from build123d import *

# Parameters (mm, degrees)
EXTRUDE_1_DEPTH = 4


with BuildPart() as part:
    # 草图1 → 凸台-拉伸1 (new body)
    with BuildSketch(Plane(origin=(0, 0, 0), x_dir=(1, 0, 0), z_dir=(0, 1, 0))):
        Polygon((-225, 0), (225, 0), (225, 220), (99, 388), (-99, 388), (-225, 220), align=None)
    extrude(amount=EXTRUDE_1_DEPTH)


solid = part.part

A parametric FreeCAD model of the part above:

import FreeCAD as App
import Part
import Sketcher
from FreeCAD import Vector
Q = App.Units.Quantity


def add_polygon(sketch, points):
    """Adds a closed chain of lines whose ends are joined by coincident constraints."""
    first, n = sketch.GeometryCount, len(points)
    for a, b in zip(points, points[1:] + points[:1]):
        sketch.addGeometry(Part.LineSegment(App.Vector(*a, 0), App.Vector(*b, 0)), False)
    for i in range(n):
        sketch.addConstraint(Sketcher.Constraint("Coincident", first + i, 2, first + (i + 1) % n, 1))

doc = App.newDocument("Part")
body = doc.addObject("PartDesign::Body", "Body")

# Sketch on XZ plane
sketch1 = doc.addObject("Sketcher::SketchObject", "Sketch")
body.addObject(sketch1)
sketch1.AttachmentSupport = (doc.XZ_Plane, [""])
sketch1.MapMode = "FlatFace"
add_polygon(sketch1, [(-225, 0), (225, 0), (225, -220), (99, -388), (-99, -388), (-225, -220)])  # lines 0-5
sketch1.addConstraint([
    Sketcher.Constraint("Horizontal", 0),
    Sketcher.Constraint("Vertical", 1),
    Sketcher.Constraint("Horizontal", 3),
    Sketcher.Constraint("Vertical", 5),
    Sketcher.Constraint("Symmetric", 0, 2, 5, 2, -1, 1),
    Sketcher.Constraint("Horizontal", 1, 2, 4, 2),
    Sketcher.Constraint("Equal", 2, 4),
    Sketcher.Constraint("DistanceX", 0, 1, 0, 2, Q("450 mm")),
    Sketcher.Constraint("DistanceX", 3, 2, 3, 1, Q("198 mm")),
    Sketcher.Constraint("DistanceY", 1, 2, 1, 1, Q("220 mm")),
    Sketcher.Constraint("Distance", 2, Q("210 mm")),
])
pad1 = doc.addObject("PartDesign::Pad", "Pad")
body.addObject(pad1)
pad1.Profile = sketch1
pad1.Length = 4
pad1.Reversed = True

doc.recompute()
